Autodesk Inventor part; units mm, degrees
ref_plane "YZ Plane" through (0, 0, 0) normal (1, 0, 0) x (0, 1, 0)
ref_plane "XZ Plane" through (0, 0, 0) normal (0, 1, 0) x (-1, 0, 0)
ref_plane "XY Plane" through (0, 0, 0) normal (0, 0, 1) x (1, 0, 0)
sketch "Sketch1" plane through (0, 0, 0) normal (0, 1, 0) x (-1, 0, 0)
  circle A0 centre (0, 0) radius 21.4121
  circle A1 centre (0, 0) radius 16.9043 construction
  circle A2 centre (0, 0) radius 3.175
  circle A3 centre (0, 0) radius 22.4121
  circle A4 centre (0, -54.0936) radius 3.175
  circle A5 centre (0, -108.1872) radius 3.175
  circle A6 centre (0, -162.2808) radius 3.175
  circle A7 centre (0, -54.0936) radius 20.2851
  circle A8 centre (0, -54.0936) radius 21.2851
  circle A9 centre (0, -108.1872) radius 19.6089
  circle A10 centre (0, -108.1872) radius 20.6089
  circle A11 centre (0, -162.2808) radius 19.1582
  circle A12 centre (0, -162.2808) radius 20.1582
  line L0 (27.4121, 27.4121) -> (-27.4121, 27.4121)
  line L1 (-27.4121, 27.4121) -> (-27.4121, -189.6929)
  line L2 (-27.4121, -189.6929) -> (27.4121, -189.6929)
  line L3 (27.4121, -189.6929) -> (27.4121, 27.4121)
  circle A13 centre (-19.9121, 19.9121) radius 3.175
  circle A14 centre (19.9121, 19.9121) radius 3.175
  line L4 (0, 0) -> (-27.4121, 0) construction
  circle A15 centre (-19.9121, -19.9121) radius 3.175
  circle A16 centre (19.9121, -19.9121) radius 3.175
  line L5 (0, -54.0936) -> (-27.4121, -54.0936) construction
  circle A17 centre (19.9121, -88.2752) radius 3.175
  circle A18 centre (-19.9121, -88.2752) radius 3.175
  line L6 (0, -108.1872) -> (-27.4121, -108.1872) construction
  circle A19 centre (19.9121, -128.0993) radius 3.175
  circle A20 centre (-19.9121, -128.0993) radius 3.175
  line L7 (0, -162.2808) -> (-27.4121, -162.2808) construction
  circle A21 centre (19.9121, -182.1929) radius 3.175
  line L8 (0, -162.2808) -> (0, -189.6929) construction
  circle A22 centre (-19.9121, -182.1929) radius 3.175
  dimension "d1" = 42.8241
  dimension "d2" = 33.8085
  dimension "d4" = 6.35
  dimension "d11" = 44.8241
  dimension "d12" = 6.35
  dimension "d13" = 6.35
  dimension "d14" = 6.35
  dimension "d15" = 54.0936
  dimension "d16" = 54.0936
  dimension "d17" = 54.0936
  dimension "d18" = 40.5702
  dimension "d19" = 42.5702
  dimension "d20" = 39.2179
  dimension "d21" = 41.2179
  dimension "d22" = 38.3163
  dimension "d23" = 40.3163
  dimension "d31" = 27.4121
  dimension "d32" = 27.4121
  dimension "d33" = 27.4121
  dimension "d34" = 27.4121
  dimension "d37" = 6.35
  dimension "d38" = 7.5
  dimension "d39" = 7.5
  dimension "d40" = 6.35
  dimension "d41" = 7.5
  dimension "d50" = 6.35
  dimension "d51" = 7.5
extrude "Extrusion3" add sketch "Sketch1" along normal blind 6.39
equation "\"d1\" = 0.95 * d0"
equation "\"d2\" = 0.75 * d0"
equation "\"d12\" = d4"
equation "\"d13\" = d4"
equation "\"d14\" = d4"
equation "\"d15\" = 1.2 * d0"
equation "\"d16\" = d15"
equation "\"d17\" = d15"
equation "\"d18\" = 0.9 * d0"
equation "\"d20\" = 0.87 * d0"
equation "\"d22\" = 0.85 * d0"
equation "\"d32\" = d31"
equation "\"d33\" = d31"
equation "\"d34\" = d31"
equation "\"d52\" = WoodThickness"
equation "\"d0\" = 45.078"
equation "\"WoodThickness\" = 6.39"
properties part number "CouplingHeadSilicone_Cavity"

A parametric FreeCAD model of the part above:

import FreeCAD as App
import Part
import Sketcher
from FreeCAD import Vector
Q = App.Units.Quantity


def add_polygon(sketch, points):
    """Adds a closed chain of lines whose ends are joined by coincident constraints."""
    first, n = sketch.GeometryCount, len(points)
    for a, b in zip(points, points[1:] + points[:1]):
        sketch.addGeometry(Part.LineSegment(App.Vector(*a, 0), App.Vector(*b, 0)), False)
    for i in range(n):
        sketch.addConstraint(Sketcher.Constraint("Coincident", first + i, 2, first + (i + 1) % n, 1))

doc = App.newDocument("Part")
body = doc.addObject("PartDesign::Body", "Body")
body.AllowCompound = True

# Sketch on XZ plane
sketch1 = body.newObject("Sketcher::SketchObject", "Sketch")
sketch1.AttachmentSupport = (doc.getObject("XZ_Plane"), [""])
sketch1.MapMode = "FlatFace"
sketch1.addGeometry(Part.Circle(Vector(0, 0, 0), Vector(0, 0, 1), 21.4), False)  # 0
sketch1.addGeometry(Part.Circle(Vector(0, 0, 0), Vector(0, 0, 1), 3.2), False)  # 1
sketch1.addGeometry(Part.Circle(Vector(0, -54.1, 0), Vector(0, 0, 1), 20.3), False)  # 2
sketch1.addGeometry(Part.Circle(Vector(0, -54.1, 0), Vector(0, 0, 1), 3.2), False)  # 3
sketch1.addGeometry(Part.Circle(Vector(0, -108.2, 0), Vector(0, 0, 1), 19.6), False)  # 4
sketch1.addGeometry(Part.Circle(Vector(0, -108.2, 0), Vector(0, 0, 1), 3.2), False)  # 5
sketch1.addGeometry(Part.Circle(Vector(0, -162.3, 0), Vector(0, 0, 1), 19.2), False)  # 6
sketch1.addGeometry(Part.Circle(Vector(0, -162.3, 0), Vector(0, 0, 1), 3.2), False)  # 7
add_polygon(sketch1, [(-27.4, -189.7), (-27.4, 27.4), (27.4, 27.4), (27.4, -189.7)])  # lines 8-11
sketch1.addGeometry(Part.Circle(Vector(19.9, -182.2, 0), Vector(0, 0, 1), 3.2), False)  # 12
sketch1.addGeometry(Part.Circle(Vector(19.9, -128.1, 0), Vector(0, 0, 1), 3.2), False)  # 13
sketch1.addGeometry(Part.Circle(Vector(19.9, -88.3, 0), Vector(0, 0, 1), 3.2), False)  # 14
sketch1.addGeometry(Part.Circle(Vector(0, -162.3, 0), Vector(0, 0, 1), 20.2), False)  # 15
sketch1.addGeometry(Part.Circle(Vector(-19.9, -182.2, 0), Vector(0, 0, 1), 3.2), False)  # 16
sketch1.addGeometry(Part.Circle(Vector(0, -108.2, 0), Vector(0, 0, 1), 20.6), False)  # 17
sketch1.addGeometry(Part.Circle(Vector(-19.9, -128.1, 0), Vector(0, 0, 1), 3.2), False)  # 18
sketch1.addGeometry(Part.Circle(Vector(-19.9, -88.3, 0), Vector(0, 0, 1), 3.2), False)  # 19
sketch1.addGeometry(Part.Circle(Vector(19.9, -19.9, 0), Vector(0, 0, 1), 3.2), False)  # 20
sketch1.addGeometry(Part.Circle(Vector(19.9, 19.9, 0), Vector(0, 0, 1), 3.2), False)  # 21
sketch1.addGeometry(Part.Circle(Vector(0, -54.1, 0), Vector(0, 0, 1), 21.3), False)  # 22
sketch1.addGeometry(Part.Circle(Vector(0, 0, 0), Vector(0, 0, 1), 22.4), False)  # 23
sketch1.addGeometry(Part.Circle(Vector(-19.9, -19.9, 0), Vector(0, 0, 1), 3.2), False)  # 24
sketch1.addGeometry(Part.Circle(Vector(-19.9, 19.9, 0), Vector(0, 0, 1), 3.2), False)  # 25
sketch1.addConstraint(Sketcher.Constraint("Vertical", 8))
sketch1.addConstraint(Sketcher.Constraint("Horizontal", 9))
sketch1.addConstraint(Sketcher.Constraint("Vertical", 10))
sketch1.addConstraint(Sketcher.Constraint("Horizontal", 11))
sketch1.addConstraint(Sketcher.Constraint("Coincident", 0, 3, -1, 1))
sketch1.addConstraint(Sketcher.Constraint("Coincident", 1, 3, -1, 1))
sketch1.addConstraint(Sketcher.Constraint("Coincident", 23, 3, -1, 1))
sketch1.addConstraint(Sketcher.Constraint("Coincident", 3, 3, 2, 3))
sketch1.addConstraint(Sketcher.Constraint("Coincident", 5, 3, 4, 3))
sketch1.addConstraint(Sketcher.Constraint("Coincident", 7, 3, 6, 3))
sketch1.addConstraint(Sketcher.Constraint("Coincident", 15, 3, 6, 3))
sketch1.addConstraint(Sketcher.Constraint("Coincident", 17, 3, 4, 3))
sketch1.addConstraint(Sketcher.Constraint("Coincident", 22, 3, 2, 3))
sketch1.addConstraint(Sketcher.Constraint("Equal", 1, 3))
sketch1.addConstraint(Sketcher.Constraint("Equal", 3, 5))
sketch1.addConstraint(Sketcher.Constraint("Equal", 5, 7))
sketch1.addConstraint(Sketcher.Constraint("Equal", 7, 12))
sketch1.addConstraint(Sketcher.Constraint("Equal", 12, 13))
sketch1.addConstraint(Sketcher.Constraint("Equal", 13, 14))
sketch1.addConstraint(Sketcher.Constraint("Equal", 14, 16))
sketch1.addConstraint(Sketcher.Constraint("Equal", 16, 18))
sketch1.addConstraint(Sketcher.Constraint("Equal", 18, 19))
sketch1.addConstraint(Sketcher.Constraint("Equal", 19, 20))
sketch1.addConstraint(Sketcher.Constraint("Equal", 20, 21))
sketch1.addConstraint(Sketcher.Constraint("Equal", 21, 24))
sketch1.addConstraint(Sketcher.Constraint("Equal", 24, 25))
sketch1.addConstraint(Sketcher.Constraint("Symmetric", 21, 3, 24, 3, -1, 1))
sketch1.addConstraint(Sketcher.Constraint("Symmetric", 20, 3, 25, 3, -1, 1))
sketch1.addConstraint(Sketcher.Constraint("Symmetric", 12, 3, 16, 3, -2))
sketch1.addConstraint(Sketcher.Constraint("Symmetric", 13, 3, 18, 3, -2))
sketch1.addConstraint(Sketcher.Constraint("Symmetric", 14, 3, 19, 3, -2))
sketch1.addConstraint(Sketcher.Constraint("Symmetric", 20, 3, 24, 3, -2))
sketch1.addConstraint(Sketcher.Constraint("PointOnObject", 2, 3, -2))
sketch1.addConstraint(Sketcher.Constraint("PointOnObject", 4, 3, -2))
sketch1.addConstraint(Sketcher.Constraint("PointOnObject", 6, 3, -2))
sketch1.addConstraint(Sketcher.Constraint("Vertical", 12, 3, 13, 3))
sketch1.addConstraint(Sketcher.Constraint("Vertical", 13, 3, 14, 3))
sketch1.addConstraint(Sketcher.Constraint("Vertical", 14, 3, 20, 3))
sketch1.addConstraint(Sketcher.Constraint("Diameter", 1, Q("0.25 in")))
sketch1.addConstraint(Sketcher.Constraint("Diameter", 0, Q("1.686 in")))
sketch1.addConstraint(Sketcher.Constraint("Diameter", 4, Q("1.544 in")))
sketch1.addConstraint(Sketcher.Constraint("Diameter", 22, Q("1.676 in")))
sketch1.addConstraint(Sketcher.Constraint("Diameter", 2, Q("40.5702 mm")))
sketch1.addConstraint(Sketcher.Constraint("Diameter", 6, Q("38.3164 mm")))
sketch1.addConstraint(Sketcher.Constraint("Diameter", 15, Q("40.3164 mm")))
sketch1.addConstraint(Sketcher.Constraint("Diameter", 17, Q("41.2178 mm")))
sketch1.addConstraint(Sketcher.Constraint("Diameter", 23, Q("44.8242 mm")))
sketch1.addConstraint(Sketcher.Constraint("DistanceY", 2, 3, -1, 1, Q("54.0936 mm")))
sketch1.addConstraint(Sketcher.Constraint("DistanceX", 8, 2, -1, 1, Q("27.412 mm")))
sketch1.addConstraint(Sketcher.Constraint("DistanceY", -1, 1, 8, 2, Q("27.412 mm")))
sketch1.addConstraint(Sketcher.Constraint("DistanceX", -1, 1, 9, 2, Q("27.412 mm")))
sketch1.addConstraint(Sketcher.Constraint("DistanceY", 4, 3, 2, 3, Q("54.0936 mm")))
sketch1.addConstraint(Sketcher.Constraint("DistanceY", 6, 3, 4, 3, Q("54.0936 mm")))
sketch1.addConstraint(Sketcher.Constraint("DistanceY", 12, 3, 13, 3, Q("54.0936 mm")))
sketch1.addConstraint(Sketcher.Constraint("DistanceX", 8, 2, 25, 3, Q("7.5 mm")))
sketch1.addConstraint(Sketcher.Constraint("DistanceY", 25, 3, 8, 2, Q("7.5 mm")))
sketch1.addConstraint(Sketcher.Constraint("DistanceY", 10, 2, 12, 3, Q("7.5 mm")))
sketch1.addConstraint(Sketcher.Constraint("DistanceY", 10, 2, 6, 3, Q("27.412 mm")))
sketch1.addConstraint(Sketcher.Constraint("DistanceY", 14, 3, -1, 1, Q("3.4754 in")))
pad1 = body.newObject("PartDesign::Pad", "Pad")
pad1.Profile = sketch1
pad1.Length = 6.39
pad1.Reversed = True

doc.recompute()
